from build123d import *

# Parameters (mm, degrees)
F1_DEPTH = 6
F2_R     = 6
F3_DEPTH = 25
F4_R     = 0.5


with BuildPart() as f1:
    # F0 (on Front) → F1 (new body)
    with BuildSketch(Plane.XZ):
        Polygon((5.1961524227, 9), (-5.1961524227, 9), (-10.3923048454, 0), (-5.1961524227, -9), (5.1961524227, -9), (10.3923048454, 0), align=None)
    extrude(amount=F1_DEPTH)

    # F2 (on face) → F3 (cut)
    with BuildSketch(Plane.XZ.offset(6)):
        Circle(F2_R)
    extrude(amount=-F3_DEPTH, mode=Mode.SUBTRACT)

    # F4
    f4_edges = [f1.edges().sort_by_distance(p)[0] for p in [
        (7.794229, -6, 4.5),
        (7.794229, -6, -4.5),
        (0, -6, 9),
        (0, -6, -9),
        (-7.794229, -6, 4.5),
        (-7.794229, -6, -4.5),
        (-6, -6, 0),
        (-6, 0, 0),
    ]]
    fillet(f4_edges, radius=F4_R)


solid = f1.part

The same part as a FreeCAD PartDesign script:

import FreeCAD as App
import Part
import Sketcher

V = App.Vector
Q = App.Units.Quantity


def edges_at(feature, points):
    """Names of the edges that pass closest to the given points."""
    edges = feature.Shape.Edges
    near = lambda p: min(range(len(edges)), key=lambda i: edges[i].distToShape(Part.Vertex(*p))[0])
    return sorted({f"Edge{near(p) + 1}" for p in points})


def add_polygon(sketch, points):
    """Adds a closed chain of lines whose ends are joined by coincident constraints."""
    first, n = sketch.GeometryCount, len(points)
    for a, b in zip(points, points[1:] + points[:1]):
        sketch.addGeometry(Part.LineSegment(App.Vector(*a, 0), App.Vector(*b, 0)), False)
    for i in range(n):
        sketch.addConstraint(Sketcher.Constraint("Coincident", first + i, 2, first + (i + 1) % n, 1))

doc = App.newDocument("Part")
body = doc.addObject("PartDesign::Body", "Body")

sketch1 = body.newObject("Sketcher::SketchObject", "Sketch")
sketch1.AttachmentSupport = (doc.getObject("XZ_Plane"), [""])
sketch1.MapMode = "FlatFace"
add_polygon(sketch1, [(5, 9), (-5, 9), (-10, 0), (-5, -9), (5, -9), (10, 0)])
sketch1.addConstraint(Sketcher.Constraint("Horizontal", 0))
sketch1.addConstraint(Sketcher.Constraint("Horizontal", 3))
sketch1.addConstraint(Sketcher.Constraint("Symmetric", 0, 2, 3, 2, -1, 1))
sketch1.addConstraint(Sketcher.Constraint("Symmetric", 1, 2, 4, 2, -1, 1))
sketch1.addConstraint(Sketcher.Constraint("PointOnObject", 1, 2, -1))
sketch1.addConstraint(Sketcher.Constraint("Parallel", 2, 5))
sketch1.addConstraint(Sketcher.Constraint("Vertical", 0, 2, 2, 2))
sketch1.addConstraint(Sketcher.Constraint("Angle", 1, Q("-120 deg")))
sketch1.addConstraint(Sketcher.Constraint("DistanceY", -1, 1, 0, 2, Q("9 mm")))
sketch1.addConstraint(Sketcher.Constraint("DistanceX", 0, 2, 0, 1, Q("10.392305 mm")))
pad1 = body.newObject("PartDesign::Pad", "Pad")
pad1.Profile = sketch1
pad1.Length = 6

sketch2 = body.newObject("Sketcher::SketchObject", "Sketch001")
sketch2.AttachmentSupport = (doc.getObject("XZ_Plane"), [""])
sketch2.MapMode = "FlatFace"
sketch2.AttachmentOffset = App.Placement(V(0, 0, 6), App.Rotation())
sketch2.addGeometry(Part.Circle(V(0, 0, 0), V(0, 0, 1), 6), False)
sketch2.addConstraint(Sketcher.Constraint("Coincident", 0, 3, -1, 1))
sketch2.addConstraint(Sketcher.Constraint("Diameter", 0, Q("12 mm")))
pocket1 = body.newObject("PartDesign::Pocket", "Pocket")
pocket1.Profile = sketch2
pocket1.Length = 25
doc.recompute()

fillet = body.newObject("PartDesign::Fillet", "Fillet")
fillet.Base = (pocket1, edges_at(pocket1, [
    (7.794, -6, 4.5),
    (7.794, -6, -4.5),
    (0, -6, 9),
    (0, -6, -9),
    (-7.794, -6, 4.5),
    (-7.794, -6, -4.5),
    (-6, -6, 0),
    (-6, 0, 0),
]))
fillet.Radius = 0.5

doc.recompute()
